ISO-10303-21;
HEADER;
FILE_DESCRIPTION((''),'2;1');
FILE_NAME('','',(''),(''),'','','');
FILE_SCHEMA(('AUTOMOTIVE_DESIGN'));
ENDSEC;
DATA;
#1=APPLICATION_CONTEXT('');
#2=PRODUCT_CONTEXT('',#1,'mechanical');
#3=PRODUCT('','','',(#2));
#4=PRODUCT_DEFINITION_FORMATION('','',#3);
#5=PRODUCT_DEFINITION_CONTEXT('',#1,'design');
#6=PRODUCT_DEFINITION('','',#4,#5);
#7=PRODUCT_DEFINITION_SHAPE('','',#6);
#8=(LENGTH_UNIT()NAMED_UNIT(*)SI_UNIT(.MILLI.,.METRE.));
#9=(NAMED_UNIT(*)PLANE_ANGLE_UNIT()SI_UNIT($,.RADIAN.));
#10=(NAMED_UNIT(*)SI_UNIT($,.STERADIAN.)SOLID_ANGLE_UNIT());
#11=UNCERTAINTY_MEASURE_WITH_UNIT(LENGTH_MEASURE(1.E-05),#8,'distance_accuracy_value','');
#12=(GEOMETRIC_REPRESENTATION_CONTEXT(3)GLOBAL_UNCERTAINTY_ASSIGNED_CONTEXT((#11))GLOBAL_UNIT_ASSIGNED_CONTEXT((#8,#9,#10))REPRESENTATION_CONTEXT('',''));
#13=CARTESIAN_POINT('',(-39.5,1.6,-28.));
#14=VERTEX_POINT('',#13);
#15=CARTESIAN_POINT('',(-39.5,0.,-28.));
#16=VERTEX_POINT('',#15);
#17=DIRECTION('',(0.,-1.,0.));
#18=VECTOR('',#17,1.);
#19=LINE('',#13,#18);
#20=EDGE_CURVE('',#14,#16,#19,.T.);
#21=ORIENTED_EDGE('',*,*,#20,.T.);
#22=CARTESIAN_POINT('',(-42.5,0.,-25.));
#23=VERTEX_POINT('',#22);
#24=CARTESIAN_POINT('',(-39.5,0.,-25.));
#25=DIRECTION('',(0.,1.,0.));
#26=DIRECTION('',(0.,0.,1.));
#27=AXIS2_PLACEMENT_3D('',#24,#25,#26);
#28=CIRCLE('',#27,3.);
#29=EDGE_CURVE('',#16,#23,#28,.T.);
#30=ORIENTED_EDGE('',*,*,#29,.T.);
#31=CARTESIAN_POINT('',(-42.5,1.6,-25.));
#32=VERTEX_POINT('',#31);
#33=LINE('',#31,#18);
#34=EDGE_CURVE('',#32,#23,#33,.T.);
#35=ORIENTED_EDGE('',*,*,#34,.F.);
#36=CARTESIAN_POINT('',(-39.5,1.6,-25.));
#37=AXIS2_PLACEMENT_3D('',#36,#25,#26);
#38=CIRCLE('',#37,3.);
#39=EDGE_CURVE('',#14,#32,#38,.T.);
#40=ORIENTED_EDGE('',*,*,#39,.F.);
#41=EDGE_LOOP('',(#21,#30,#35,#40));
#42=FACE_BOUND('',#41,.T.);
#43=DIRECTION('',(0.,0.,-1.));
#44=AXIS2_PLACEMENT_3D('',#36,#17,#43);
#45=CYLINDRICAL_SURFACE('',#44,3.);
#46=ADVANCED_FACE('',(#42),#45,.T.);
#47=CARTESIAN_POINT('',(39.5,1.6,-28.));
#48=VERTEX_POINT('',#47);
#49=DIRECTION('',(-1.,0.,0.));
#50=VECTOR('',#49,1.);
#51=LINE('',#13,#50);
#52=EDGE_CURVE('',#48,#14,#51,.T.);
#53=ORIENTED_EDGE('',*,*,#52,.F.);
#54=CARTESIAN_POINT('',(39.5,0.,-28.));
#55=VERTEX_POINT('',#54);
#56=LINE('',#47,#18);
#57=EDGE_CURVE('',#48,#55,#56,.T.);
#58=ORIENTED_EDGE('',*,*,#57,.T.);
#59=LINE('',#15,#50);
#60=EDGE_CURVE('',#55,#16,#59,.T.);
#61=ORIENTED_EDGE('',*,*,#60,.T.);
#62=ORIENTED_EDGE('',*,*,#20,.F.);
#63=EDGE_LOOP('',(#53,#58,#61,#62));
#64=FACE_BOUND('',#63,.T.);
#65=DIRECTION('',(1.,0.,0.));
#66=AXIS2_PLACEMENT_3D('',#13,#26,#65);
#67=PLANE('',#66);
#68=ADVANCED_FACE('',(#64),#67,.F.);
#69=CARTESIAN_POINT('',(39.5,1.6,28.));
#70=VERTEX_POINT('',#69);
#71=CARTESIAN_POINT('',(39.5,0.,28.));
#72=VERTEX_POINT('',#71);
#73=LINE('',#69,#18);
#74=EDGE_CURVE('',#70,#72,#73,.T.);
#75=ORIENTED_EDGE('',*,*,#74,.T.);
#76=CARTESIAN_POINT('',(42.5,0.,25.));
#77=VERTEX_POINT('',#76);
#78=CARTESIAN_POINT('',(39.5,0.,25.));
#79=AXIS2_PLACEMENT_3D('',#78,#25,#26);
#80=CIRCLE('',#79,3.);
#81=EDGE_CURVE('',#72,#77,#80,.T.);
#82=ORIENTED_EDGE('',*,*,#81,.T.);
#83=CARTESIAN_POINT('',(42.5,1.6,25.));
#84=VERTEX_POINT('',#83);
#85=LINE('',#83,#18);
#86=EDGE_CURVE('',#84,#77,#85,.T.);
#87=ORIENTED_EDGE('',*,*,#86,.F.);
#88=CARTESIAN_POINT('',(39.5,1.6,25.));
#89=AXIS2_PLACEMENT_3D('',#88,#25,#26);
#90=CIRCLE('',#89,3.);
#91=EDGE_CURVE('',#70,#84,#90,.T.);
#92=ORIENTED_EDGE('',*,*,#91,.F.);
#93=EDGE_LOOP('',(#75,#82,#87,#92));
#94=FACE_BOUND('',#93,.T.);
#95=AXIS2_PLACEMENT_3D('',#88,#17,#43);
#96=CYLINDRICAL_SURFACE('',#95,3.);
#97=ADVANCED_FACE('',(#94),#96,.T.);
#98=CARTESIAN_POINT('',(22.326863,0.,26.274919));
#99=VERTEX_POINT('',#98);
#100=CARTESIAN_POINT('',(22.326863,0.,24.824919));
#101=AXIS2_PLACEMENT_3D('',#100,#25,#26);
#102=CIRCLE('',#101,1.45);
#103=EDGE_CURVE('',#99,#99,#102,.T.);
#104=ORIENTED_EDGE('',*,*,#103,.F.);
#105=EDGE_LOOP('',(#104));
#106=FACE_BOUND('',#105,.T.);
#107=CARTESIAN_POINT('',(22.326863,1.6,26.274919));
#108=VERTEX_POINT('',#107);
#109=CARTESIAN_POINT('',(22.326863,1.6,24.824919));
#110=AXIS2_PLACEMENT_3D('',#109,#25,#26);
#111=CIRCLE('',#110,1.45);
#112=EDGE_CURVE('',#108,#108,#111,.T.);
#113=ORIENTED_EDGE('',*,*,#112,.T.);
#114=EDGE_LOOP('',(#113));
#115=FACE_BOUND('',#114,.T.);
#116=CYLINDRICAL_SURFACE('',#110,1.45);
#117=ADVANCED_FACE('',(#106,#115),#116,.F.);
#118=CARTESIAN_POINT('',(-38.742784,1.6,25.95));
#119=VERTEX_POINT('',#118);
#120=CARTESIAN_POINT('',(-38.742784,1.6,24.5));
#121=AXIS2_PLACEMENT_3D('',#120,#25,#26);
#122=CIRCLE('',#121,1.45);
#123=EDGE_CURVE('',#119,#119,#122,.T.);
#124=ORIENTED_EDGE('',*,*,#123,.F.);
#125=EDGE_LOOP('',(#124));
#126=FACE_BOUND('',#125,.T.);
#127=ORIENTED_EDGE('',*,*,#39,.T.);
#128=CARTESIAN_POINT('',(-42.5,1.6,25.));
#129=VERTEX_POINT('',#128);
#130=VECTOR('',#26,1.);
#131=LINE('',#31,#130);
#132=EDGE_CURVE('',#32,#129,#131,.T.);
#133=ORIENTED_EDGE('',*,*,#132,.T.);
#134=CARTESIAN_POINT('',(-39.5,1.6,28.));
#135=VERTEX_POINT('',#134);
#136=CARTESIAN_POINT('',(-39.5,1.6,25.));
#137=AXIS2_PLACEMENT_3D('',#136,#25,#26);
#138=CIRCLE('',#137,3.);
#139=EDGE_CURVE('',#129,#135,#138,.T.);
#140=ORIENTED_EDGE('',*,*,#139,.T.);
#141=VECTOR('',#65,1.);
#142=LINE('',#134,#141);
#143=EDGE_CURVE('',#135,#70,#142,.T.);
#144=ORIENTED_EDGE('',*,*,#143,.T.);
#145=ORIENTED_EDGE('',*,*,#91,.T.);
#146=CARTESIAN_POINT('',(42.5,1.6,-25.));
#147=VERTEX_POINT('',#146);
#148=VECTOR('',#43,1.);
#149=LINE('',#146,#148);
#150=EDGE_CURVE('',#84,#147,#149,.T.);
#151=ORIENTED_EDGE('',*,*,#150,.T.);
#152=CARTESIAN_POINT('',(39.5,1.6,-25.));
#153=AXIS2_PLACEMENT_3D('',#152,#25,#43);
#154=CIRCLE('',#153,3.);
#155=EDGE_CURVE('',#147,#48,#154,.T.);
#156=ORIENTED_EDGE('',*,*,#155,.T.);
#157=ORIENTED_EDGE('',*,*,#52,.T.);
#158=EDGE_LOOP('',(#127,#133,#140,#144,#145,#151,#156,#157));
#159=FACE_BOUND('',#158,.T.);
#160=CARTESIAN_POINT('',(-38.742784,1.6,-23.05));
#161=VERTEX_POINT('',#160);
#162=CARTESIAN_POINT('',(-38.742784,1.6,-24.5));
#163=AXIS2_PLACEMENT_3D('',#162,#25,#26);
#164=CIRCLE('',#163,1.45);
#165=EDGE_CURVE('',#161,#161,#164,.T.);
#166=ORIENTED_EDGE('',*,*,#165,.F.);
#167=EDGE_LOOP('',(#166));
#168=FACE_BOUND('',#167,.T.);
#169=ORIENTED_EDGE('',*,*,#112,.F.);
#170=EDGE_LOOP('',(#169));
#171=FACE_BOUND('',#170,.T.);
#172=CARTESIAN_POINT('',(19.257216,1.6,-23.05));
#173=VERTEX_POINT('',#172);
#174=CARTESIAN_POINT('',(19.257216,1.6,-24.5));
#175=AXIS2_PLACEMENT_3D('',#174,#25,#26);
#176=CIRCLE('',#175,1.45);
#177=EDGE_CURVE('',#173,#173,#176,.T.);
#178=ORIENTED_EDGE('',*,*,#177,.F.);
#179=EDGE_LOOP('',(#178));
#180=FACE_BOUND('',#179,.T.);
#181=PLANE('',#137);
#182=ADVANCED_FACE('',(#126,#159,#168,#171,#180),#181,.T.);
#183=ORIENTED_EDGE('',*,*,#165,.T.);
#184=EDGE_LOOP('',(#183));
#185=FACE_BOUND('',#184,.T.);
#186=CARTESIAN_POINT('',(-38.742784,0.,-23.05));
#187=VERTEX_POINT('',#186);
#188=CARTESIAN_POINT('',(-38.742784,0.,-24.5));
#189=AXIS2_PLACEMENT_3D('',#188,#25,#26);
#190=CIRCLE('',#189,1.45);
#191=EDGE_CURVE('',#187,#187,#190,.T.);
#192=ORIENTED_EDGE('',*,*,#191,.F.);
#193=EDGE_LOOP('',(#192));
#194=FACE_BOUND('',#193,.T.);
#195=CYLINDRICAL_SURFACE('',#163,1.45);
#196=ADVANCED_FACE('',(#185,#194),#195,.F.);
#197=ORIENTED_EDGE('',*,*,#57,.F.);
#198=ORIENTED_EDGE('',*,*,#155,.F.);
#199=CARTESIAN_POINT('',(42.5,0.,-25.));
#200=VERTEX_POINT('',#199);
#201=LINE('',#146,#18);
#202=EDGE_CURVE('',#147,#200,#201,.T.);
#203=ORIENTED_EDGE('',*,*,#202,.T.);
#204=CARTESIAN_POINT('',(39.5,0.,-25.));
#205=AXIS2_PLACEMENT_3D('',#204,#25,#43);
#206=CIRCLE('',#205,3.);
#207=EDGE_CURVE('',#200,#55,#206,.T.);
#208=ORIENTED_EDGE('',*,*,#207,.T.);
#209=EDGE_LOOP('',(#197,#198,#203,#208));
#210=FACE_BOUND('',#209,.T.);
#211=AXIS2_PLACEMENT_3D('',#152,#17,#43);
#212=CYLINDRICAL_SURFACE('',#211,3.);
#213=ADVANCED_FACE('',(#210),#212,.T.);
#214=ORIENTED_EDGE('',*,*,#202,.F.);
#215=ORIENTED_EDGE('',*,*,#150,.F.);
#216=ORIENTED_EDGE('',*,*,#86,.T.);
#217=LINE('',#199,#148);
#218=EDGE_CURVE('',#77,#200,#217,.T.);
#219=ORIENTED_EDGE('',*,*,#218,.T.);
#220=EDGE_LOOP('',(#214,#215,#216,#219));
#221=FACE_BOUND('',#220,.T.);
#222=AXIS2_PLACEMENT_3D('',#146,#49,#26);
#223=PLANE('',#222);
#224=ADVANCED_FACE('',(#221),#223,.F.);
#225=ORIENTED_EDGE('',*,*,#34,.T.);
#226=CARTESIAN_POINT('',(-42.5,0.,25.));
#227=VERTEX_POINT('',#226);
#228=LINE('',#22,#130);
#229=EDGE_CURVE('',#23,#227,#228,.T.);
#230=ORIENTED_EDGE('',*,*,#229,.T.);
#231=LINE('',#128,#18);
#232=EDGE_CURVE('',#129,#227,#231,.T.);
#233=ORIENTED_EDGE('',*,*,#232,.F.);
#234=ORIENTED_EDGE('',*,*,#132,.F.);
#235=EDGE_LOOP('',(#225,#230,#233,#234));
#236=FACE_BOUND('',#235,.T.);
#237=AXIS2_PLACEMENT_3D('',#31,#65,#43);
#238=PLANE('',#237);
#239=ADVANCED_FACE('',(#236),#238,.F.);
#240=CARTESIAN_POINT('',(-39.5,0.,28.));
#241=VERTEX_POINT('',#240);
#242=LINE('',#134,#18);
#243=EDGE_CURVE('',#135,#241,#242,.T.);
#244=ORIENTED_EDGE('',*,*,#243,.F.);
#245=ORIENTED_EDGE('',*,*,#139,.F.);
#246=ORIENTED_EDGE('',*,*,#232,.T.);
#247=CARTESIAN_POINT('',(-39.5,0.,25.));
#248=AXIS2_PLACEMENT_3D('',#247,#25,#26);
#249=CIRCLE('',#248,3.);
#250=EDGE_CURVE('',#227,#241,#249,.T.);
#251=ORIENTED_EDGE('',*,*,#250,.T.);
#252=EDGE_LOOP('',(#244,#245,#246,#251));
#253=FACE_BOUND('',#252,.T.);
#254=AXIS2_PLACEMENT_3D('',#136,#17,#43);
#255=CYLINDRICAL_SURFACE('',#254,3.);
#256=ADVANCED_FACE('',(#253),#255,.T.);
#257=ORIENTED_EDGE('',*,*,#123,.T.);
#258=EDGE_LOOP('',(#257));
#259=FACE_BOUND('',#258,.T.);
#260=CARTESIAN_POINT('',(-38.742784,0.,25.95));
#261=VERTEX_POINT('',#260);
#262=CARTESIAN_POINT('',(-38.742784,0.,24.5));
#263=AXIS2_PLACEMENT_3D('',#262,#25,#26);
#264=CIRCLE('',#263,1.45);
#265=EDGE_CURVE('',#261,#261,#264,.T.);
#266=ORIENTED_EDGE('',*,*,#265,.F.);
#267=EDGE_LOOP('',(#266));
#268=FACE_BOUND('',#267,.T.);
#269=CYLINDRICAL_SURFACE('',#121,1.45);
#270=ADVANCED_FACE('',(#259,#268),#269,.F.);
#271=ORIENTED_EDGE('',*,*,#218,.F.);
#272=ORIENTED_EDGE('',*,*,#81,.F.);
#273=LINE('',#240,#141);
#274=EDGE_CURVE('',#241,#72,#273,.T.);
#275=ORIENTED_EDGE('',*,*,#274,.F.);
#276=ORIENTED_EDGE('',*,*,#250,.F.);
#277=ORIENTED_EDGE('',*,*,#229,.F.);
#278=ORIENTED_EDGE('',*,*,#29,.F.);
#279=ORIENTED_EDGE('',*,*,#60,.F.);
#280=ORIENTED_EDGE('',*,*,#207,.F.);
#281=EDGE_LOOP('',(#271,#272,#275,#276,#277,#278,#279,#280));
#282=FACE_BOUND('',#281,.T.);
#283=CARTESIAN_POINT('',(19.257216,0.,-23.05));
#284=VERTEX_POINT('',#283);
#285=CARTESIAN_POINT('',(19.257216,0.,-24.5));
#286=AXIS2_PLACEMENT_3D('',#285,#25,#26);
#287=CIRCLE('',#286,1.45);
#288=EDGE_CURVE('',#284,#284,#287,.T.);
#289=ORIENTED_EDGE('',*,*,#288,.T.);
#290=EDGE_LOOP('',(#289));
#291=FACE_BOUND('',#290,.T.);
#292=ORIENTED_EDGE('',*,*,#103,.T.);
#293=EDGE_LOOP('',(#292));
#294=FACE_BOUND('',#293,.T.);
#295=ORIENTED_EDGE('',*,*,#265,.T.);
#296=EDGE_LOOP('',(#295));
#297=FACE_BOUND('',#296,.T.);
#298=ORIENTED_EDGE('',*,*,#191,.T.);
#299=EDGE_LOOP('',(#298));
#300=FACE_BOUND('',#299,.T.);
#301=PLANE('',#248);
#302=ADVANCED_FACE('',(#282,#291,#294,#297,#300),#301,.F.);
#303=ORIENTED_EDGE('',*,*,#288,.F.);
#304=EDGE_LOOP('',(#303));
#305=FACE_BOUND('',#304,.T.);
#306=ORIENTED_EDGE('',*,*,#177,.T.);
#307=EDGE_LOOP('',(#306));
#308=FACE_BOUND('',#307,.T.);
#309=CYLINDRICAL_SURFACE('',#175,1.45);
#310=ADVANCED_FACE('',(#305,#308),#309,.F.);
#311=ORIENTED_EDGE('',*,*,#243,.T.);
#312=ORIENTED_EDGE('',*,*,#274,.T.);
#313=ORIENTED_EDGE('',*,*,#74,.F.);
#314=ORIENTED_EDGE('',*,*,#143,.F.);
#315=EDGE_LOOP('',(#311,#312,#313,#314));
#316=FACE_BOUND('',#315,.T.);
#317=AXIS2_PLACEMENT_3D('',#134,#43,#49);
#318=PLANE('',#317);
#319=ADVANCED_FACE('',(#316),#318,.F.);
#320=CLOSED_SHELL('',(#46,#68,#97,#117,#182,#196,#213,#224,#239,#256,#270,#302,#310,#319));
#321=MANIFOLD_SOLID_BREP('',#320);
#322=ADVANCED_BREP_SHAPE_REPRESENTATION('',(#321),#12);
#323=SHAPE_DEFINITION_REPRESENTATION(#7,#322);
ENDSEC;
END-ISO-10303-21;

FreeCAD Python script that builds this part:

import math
import FreeCAD as App
import Part
import Sketcher
from FreeCAD import Vector
Q = App.Units.Quantity

doc = App.newDocument("Part")
body = doc.addObject("PartDesign::Body", "Body")

sketch1 = body.newObject("Sketcher::SketchObject", "Sketch")
sketch1.AttachmentSupport = (doc.getObject("XZ_Plane"), [""])
sketch1.MapMode = "FlatFace"
sketch1.addGeometry(Part.LineSegment(Vector(39.5, -28, 0), Vector(-39.5, -28, 0)), False)
sketch1.addGeometry(Part.ArcOfCircle(Part.Circle(Vector(-39.5, -25, 0), Vector(0, 0, 1), 3), math.radians(180), math.radians(270)), False)
sketch1.addGeometry(Part.LineSegment(Vector(-42.5, -25, 0), Vector(-42.5, 25, 0)), False)
sketch1.addGeometry(Part.ArcOfCircle(Part.Circle(Vector(-39.5, 25, 0), Vector(0, 0, 1), 3), math.radians(90), math.radians(180)), False)
sketch1.addGeometry(Part.LineSegment(Vector(-39.5, 28, 0), Vector(39.5, 28, 0)), False)
sketch1.addGeometry(Part.ArcOfCircle(Part.Circle(Vector(39.5, 25, 0), Vector(0, 0, 1), 3), math.radians(0), math.radians(90)), False)
sketch1.addGeometry(Part.LineSegment(Vector(42.5, 25, 0), Vector(42.5, -25, 0)), False)
sketch1.addGeometry(Part.ArcOfCircle(Part.Circle(Vector(39.5, -25, 0), Vector(0, 0, 1), 3), math.radians(-90), math.radians(0)), False)
sketch1.addConstraint(Sketcher.Constraint("Tangent", 0, 2, 1, 2))
sketch1.addConstraint(Sketcher.Constraint("Tangent", 1, 1, 2, 1))
sketch1.addConstraint(Sketcher.Constraint("Tangent", 2, 2, 3, 2))
sketch1.addConstraint(Sketcher.Constraint("Tangent", 3, 1, 4, 1))
sketch1.addConstraint(Sketcher.Constraint("Tangent", 4, 2, 5, 2))
sketch1.addConstraint(Sketcher.Constraint("Tangent", 5, 1, 6, 1))
sketch1.addConstraint(Sketcher.Constraint("Tangent", 6, 2, 7, 2))
sketch1.addConstraint(Sketcher.Constraint("Tangent", 7, 1, 0, 1))
sketch1.addConstraint(Sketcher.Constraint("Horizontal", 0))
sketch1.addConstraint(Sketcher.Constraint("Vertical", 2))
sketch1.addConstraint(Sketcher.Constraint("Horizontal", 4))
sketch1.addConstraint(Sketcher.Constraint("Vertical", 6))
sketch1.addConstraint(Sketcher.Constraint("Equal", 1, 3))
sketch1.addConstraint(Sketcher.Constraint("Equal", 3, 5))
sketch1.addConstraint(Sketcher.Constraint("Equal", 5, 7))
sketch1.addConstraint(Sketcher.Constraint("Symmetric", 1, 3, 5, 3, -1, 1))
sketch1.addConstraint(Sketcher.Constraint("Radius", 1, Q("3 mm")))
sketch1.addConstraint(Sketcher.Constraint("DistanceX", 0, 2, 0, 1, Q("79 mm")))
sketch1.addConstraint(Sketcher.Constraint("DistanceY", 2, 1, 2, 2, Q("50 mm")))
pad1 = body.newObject("PartDesign::Pad", "Pad")
pad1.Profile = sketch1
pad1.Length = 1.6
pad1.Reversed = True

sketch2 = body.newObject("Sketcher::SketchObject", "Sketch001")
sketch2.AttachmentSupport = (doc.getObject("XZ_Plane"), [""])
sketch2.MapMode = "FlatFace"
sketch2.AttachmentOffset = App.Placement(Vector(0, 0, -1.6), App.Rotation())
sketch2.addGeometry(Part.Circle(Vector(-38.7, -24.5, 0), Vector(0, 0, 1), 1.4), False)
sketch2.addGeometry(Part.Circle(Vector(19.3, -24.5, 0), Vector(0, 0, 1), 1.4), False)
sketch2.addGeometry(Part.Circle(Vector(22.3, 24.8, 0), Vector(0, 0, 1), 1.4), False)
sketch2.addGeometry(Part.Circle(Vector(-38.7, 24.5, 0), Vector(0, 0, 1), 1.4), False)
sketch2.addConstraint(Sketcher.Constraint("Equal", 0, 1))
sketch2.addConstraint(Sketcher.Constraint("Equal", 1, 2))
sketch2.addConstraint(Sketcher.Constraint("Equal", 2, 3))
sketch2.addConstraint(Sketcher.Constraint("Symmetric", 0, 3, 3, 3, -1))
sketch2.addConstraint(Sketcher.Constraint("Horizontal", 0, 3, 1, 3))
sketch2.addConstraint(Sketcher.Constraint("Diameter", 0, Q("2.9 mm")))
sketch2.addConstraint(Sketcher.Constraint("DistanceX", 0, 3, 1, 3, Q("58 mm")))
sketch2.addConstraint(Sketcher.Constraint("DistanceY", 0, 3, 3, 3, Q("49 mm")))
sketch2.addConstraint(Sketcher.Constraint("DistanceY", -1, 1, 2, 3, Q("24.824919 mm")))
sketch2.addConstraint(Sketcher.Constraint("DistanceX", 0, 3, -1, 1, Q("38.742784 mm")))
sketch2.addConstraint(Sketcher.Constraint("DistanceX", -1, 1, 2, 3, Q("22.326863 mm")))
doc.recompute()
hole = body.newObject("PartDesign::Hole", "Hole")
hole.Profile = sketch2
hole.ThreadType = "None"
hole.Diameter = 2.9
hole.DepthType = "ThroughAll"
hole.Reversed = True

doc.recompute()
